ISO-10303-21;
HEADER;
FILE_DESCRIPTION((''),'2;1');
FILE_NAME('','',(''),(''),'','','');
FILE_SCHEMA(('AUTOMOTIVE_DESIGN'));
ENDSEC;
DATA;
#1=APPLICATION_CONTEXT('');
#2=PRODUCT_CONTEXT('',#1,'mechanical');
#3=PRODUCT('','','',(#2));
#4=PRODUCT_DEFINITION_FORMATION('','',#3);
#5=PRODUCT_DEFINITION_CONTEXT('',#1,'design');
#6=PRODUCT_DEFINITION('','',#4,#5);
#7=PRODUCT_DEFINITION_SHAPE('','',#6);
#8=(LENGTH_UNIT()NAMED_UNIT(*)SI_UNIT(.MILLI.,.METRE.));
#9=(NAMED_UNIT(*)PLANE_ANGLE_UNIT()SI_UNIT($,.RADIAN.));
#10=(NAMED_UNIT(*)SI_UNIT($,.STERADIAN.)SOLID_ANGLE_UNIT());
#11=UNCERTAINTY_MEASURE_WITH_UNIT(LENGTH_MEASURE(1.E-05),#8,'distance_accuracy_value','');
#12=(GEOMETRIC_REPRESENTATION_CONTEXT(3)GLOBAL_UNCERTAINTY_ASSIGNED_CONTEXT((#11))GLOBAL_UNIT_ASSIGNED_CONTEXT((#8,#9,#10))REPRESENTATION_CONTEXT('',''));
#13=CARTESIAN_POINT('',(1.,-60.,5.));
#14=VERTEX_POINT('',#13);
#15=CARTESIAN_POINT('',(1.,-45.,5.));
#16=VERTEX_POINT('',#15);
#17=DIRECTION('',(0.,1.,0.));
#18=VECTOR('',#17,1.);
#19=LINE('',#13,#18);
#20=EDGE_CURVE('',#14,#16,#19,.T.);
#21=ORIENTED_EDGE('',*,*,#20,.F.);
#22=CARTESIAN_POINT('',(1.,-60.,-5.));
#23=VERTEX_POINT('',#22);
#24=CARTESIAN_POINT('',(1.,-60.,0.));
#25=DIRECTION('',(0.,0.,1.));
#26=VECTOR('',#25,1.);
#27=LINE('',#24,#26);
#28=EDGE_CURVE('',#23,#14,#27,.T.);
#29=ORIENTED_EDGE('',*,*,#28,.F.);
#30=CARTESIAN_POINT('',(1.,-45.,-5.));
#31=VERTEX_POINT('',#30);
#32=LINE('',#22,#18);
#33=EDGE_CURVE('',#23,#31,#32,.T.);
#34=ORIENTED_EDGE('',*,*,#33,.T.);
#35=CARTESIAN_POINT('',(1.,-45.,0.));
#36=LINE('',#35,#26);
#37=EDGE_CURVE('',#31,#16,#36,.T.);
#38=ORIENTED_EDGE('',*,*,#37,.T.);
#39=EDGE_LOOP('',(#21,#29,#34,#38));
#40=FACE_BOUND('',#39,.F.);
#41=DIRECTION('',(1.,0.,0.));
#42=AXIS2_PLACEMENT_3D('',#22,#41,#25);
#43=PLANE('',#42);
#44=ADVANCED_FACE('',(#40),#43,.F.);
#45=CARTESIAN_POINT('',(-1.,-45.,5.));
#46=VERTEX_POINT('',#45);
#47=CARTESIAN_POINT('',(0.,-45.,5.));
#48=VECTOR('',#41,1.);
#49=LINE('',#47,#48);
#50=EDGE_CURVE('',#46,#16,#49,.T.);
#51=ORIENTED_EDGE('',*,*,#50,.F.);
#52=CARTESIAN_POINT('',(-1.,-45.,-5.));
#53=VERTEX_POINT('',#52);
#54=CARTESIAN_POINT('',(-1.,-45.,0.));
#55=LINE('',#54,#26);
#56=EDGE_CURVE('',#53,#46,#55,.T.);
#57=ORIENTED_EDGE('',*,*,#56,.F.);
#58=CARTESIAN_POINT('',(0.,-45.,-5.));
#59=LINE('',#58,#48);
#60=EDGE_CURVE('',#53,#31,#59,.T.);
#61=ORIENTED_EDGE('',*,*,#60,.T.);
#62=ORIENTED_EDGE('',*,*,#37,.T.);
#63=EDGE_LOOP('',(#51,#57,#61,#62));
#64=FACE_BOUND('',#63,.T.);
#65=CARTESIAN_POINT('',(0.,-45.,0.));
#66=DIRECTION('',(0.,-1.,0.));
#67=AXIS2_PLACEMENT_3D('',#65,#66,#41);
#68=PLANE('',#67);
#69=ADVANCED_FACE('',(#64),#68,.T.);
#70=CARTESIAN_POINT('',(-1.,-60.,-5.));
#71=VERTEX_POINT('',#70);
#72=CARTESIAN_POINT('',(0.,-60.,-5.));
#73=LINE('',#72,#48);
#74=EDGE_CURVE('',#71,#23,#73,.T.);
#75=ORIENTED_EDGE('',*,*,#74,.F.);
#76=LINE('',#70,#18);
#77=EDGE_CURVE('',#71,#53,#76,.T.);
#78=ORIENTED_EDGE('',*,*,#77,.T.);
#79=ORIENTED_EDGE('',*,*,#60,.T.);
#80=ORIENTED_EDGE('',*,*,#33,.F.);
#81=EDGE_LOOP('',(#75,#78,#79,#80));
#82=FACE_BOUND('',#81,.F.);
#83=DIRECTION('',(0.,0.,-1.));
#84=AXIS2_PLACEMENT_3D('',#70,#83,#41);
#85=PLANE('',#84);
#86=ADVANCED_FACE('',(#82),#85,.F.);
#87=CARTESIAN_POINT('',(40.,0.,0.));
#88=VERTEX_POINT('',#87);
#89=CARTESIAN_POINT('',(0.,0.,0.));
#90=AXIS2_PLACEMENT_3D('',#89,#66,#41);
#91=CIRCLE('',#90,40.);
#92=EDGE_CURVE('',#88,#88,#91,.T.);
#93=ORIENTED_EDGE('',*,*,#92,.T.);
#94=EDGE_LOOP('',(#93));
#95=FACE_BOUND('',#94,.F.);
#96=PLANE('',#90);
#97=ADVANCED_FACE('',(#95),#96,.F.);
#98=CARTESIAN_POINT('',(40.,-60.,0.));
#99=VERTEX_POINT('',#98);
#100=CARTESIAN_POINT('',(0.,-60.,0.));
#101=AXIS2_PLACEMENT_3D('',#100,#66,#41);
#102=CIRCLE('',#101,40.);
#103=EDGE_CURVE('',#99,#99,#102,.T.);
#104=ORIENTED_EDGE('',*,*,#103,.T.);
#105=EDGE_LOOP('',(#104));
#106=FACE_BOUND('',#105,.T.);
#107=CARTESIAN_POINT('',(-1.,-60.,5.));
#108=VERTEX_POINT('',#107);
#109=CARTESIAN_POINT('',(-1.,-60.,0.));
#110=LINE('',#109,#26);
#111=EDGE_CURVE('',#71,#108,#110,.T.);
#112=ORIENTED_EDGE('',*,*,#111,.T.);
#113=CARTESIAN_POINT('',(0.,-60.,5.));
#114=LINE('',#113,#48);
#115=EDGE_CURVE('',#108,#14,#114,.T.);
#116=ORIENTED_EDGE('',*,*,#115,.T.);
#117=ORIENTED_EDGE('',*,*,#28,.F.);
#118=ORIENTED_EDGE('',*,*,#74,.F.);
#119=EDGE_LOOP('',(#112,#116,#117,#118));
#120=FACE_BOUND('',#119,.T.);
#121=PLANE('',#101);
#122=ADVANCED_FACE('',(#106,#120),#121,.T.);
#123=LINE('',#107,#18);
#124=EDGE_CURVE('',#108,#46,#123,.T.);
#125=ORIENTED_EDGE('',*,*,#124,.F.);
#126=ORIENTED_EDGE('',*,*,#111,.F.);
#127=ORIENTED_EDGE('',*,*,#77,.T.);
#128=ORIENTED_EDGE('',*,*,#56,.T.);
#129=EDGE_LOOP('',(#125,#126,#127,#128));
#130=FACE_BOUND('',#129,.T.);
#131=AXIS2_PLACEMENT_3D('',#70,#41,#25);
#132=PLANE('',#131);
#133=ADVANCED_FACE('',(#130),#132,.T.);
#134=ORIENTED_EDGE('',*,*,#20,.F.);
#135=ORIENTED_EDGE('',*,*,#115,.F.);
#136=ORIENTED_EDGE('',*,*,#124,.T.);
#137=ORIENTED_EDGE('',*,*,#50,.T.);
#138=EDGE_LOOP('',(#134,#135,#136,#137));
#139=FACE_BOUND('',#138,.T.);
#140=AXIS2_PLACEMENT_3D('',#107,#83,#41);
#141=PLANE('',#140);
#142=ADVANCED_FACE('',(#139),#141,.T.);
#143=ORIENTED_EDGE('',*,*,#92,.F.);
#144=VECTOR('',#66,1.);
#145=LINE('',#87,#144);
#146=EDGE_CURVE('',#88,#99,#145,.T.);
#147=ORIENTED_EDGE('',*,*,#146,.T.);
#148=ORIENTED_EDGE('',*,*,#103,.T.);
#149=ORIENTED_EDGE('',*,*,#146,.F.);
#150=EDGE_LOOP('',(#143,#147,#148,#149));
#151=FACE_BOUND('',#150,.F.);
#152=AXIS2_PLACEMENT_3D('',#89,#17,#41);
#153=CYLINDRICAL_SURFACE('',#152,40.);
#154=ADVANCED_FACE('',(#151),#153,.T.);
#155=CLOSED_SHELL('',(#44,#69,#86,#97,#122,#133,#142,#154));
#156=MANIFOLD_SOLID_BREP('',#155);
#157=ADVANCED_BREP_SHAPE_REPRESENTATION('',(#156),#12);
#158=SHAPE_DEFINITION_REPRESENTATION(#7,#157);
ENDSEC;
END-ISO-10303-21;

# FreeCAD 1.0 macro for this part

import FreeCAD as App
import Part
import Sketcher

V = App.Vector
Q = App.Units.Quantity

doc = App.newDocument("Part")
body = doc.addObject("PartDesign::Body", "Body")

# Sketch on XZ plane
sketch1 = body.newObject("Sketcher::SketchObject", "Sketch")
sketch1.AttachmentSupport = (doc.getObject("XZ_Plane"), [""])
sketch1.MapMode = "FlatFace"
sketch1.addGeometry(Part.Circle(V(0, 0, 0), V(0, 0, 1), 40), False)
sketch1.addConstraint([
    Sketcher.Constraint("Coincident", 0, 3, -1, 1),
    Sketcher.Constraint("Diameter", 0, Q("80 mm")),
])
pad1 = body.newObject("PartDesign::Pad", "Pad")
pad1.Profile = sketch1
pad1.Length = 60

# Sketch on XZ plane
sketch2 = body.newObject("Sketcher::SketchObject", "Sketch001")
sketch2.AttachmentSupport = (doc.getObject("XZ_Plane"), [""])
sketch2.MapMode = "FlatFace"
sketch2.AttachmentOffset = App.Placement(V(0, 0, 60), App.Rotation())
sketch2.addGeometry([
    Part.LineSegment(V(-1, 5, 0), V(-1, -5, 0)),
    Part.LineSegment(V(-1, -5, 0), V(1, -5, 0)),
    Part.LineSegment(V(1, -5, 0), V(1, 5, 0)),
    Part.LineSegment(V(1, 5, 0), V(-1, 5, 0)),
], False)
sketch2.addConstraint([
    Sketcher.Constraint("Coincident", 0, 2, 1, 1),
    Sketcher.Constraint("Coincident", 1, 2, 2, 1),
    Sketcher.Constraint("Coincident", 2, 2, 3, 1),
    Sketcher.Constraint("Coincident", 3, 2, 0, 1),
    Sketcher.Constraint("Vertical", 0),
    Sketcher.Constraint("Horizontal", 1),
    Sketcher.Constraint("Vertical", 2),
    Sketcher.Constraint("Horizontal", 3),
    Sketcher.Constraint("Symmetric", 0, 2, 2, 2, -1, 1),
    Sketcher.Constraint("DistanceX", 1, 1, 1, 2, Q("2 mm")),
    Sketcher.Constraint("DistanceY", 0, 2, 0, 1, Q("10 mm")),
])
pocket1 = body.newObject("PartDesign::Pocket", "Pocket")
pocket1.Profile = sketch2
pocket1.Length = 15

doc.recompute()
